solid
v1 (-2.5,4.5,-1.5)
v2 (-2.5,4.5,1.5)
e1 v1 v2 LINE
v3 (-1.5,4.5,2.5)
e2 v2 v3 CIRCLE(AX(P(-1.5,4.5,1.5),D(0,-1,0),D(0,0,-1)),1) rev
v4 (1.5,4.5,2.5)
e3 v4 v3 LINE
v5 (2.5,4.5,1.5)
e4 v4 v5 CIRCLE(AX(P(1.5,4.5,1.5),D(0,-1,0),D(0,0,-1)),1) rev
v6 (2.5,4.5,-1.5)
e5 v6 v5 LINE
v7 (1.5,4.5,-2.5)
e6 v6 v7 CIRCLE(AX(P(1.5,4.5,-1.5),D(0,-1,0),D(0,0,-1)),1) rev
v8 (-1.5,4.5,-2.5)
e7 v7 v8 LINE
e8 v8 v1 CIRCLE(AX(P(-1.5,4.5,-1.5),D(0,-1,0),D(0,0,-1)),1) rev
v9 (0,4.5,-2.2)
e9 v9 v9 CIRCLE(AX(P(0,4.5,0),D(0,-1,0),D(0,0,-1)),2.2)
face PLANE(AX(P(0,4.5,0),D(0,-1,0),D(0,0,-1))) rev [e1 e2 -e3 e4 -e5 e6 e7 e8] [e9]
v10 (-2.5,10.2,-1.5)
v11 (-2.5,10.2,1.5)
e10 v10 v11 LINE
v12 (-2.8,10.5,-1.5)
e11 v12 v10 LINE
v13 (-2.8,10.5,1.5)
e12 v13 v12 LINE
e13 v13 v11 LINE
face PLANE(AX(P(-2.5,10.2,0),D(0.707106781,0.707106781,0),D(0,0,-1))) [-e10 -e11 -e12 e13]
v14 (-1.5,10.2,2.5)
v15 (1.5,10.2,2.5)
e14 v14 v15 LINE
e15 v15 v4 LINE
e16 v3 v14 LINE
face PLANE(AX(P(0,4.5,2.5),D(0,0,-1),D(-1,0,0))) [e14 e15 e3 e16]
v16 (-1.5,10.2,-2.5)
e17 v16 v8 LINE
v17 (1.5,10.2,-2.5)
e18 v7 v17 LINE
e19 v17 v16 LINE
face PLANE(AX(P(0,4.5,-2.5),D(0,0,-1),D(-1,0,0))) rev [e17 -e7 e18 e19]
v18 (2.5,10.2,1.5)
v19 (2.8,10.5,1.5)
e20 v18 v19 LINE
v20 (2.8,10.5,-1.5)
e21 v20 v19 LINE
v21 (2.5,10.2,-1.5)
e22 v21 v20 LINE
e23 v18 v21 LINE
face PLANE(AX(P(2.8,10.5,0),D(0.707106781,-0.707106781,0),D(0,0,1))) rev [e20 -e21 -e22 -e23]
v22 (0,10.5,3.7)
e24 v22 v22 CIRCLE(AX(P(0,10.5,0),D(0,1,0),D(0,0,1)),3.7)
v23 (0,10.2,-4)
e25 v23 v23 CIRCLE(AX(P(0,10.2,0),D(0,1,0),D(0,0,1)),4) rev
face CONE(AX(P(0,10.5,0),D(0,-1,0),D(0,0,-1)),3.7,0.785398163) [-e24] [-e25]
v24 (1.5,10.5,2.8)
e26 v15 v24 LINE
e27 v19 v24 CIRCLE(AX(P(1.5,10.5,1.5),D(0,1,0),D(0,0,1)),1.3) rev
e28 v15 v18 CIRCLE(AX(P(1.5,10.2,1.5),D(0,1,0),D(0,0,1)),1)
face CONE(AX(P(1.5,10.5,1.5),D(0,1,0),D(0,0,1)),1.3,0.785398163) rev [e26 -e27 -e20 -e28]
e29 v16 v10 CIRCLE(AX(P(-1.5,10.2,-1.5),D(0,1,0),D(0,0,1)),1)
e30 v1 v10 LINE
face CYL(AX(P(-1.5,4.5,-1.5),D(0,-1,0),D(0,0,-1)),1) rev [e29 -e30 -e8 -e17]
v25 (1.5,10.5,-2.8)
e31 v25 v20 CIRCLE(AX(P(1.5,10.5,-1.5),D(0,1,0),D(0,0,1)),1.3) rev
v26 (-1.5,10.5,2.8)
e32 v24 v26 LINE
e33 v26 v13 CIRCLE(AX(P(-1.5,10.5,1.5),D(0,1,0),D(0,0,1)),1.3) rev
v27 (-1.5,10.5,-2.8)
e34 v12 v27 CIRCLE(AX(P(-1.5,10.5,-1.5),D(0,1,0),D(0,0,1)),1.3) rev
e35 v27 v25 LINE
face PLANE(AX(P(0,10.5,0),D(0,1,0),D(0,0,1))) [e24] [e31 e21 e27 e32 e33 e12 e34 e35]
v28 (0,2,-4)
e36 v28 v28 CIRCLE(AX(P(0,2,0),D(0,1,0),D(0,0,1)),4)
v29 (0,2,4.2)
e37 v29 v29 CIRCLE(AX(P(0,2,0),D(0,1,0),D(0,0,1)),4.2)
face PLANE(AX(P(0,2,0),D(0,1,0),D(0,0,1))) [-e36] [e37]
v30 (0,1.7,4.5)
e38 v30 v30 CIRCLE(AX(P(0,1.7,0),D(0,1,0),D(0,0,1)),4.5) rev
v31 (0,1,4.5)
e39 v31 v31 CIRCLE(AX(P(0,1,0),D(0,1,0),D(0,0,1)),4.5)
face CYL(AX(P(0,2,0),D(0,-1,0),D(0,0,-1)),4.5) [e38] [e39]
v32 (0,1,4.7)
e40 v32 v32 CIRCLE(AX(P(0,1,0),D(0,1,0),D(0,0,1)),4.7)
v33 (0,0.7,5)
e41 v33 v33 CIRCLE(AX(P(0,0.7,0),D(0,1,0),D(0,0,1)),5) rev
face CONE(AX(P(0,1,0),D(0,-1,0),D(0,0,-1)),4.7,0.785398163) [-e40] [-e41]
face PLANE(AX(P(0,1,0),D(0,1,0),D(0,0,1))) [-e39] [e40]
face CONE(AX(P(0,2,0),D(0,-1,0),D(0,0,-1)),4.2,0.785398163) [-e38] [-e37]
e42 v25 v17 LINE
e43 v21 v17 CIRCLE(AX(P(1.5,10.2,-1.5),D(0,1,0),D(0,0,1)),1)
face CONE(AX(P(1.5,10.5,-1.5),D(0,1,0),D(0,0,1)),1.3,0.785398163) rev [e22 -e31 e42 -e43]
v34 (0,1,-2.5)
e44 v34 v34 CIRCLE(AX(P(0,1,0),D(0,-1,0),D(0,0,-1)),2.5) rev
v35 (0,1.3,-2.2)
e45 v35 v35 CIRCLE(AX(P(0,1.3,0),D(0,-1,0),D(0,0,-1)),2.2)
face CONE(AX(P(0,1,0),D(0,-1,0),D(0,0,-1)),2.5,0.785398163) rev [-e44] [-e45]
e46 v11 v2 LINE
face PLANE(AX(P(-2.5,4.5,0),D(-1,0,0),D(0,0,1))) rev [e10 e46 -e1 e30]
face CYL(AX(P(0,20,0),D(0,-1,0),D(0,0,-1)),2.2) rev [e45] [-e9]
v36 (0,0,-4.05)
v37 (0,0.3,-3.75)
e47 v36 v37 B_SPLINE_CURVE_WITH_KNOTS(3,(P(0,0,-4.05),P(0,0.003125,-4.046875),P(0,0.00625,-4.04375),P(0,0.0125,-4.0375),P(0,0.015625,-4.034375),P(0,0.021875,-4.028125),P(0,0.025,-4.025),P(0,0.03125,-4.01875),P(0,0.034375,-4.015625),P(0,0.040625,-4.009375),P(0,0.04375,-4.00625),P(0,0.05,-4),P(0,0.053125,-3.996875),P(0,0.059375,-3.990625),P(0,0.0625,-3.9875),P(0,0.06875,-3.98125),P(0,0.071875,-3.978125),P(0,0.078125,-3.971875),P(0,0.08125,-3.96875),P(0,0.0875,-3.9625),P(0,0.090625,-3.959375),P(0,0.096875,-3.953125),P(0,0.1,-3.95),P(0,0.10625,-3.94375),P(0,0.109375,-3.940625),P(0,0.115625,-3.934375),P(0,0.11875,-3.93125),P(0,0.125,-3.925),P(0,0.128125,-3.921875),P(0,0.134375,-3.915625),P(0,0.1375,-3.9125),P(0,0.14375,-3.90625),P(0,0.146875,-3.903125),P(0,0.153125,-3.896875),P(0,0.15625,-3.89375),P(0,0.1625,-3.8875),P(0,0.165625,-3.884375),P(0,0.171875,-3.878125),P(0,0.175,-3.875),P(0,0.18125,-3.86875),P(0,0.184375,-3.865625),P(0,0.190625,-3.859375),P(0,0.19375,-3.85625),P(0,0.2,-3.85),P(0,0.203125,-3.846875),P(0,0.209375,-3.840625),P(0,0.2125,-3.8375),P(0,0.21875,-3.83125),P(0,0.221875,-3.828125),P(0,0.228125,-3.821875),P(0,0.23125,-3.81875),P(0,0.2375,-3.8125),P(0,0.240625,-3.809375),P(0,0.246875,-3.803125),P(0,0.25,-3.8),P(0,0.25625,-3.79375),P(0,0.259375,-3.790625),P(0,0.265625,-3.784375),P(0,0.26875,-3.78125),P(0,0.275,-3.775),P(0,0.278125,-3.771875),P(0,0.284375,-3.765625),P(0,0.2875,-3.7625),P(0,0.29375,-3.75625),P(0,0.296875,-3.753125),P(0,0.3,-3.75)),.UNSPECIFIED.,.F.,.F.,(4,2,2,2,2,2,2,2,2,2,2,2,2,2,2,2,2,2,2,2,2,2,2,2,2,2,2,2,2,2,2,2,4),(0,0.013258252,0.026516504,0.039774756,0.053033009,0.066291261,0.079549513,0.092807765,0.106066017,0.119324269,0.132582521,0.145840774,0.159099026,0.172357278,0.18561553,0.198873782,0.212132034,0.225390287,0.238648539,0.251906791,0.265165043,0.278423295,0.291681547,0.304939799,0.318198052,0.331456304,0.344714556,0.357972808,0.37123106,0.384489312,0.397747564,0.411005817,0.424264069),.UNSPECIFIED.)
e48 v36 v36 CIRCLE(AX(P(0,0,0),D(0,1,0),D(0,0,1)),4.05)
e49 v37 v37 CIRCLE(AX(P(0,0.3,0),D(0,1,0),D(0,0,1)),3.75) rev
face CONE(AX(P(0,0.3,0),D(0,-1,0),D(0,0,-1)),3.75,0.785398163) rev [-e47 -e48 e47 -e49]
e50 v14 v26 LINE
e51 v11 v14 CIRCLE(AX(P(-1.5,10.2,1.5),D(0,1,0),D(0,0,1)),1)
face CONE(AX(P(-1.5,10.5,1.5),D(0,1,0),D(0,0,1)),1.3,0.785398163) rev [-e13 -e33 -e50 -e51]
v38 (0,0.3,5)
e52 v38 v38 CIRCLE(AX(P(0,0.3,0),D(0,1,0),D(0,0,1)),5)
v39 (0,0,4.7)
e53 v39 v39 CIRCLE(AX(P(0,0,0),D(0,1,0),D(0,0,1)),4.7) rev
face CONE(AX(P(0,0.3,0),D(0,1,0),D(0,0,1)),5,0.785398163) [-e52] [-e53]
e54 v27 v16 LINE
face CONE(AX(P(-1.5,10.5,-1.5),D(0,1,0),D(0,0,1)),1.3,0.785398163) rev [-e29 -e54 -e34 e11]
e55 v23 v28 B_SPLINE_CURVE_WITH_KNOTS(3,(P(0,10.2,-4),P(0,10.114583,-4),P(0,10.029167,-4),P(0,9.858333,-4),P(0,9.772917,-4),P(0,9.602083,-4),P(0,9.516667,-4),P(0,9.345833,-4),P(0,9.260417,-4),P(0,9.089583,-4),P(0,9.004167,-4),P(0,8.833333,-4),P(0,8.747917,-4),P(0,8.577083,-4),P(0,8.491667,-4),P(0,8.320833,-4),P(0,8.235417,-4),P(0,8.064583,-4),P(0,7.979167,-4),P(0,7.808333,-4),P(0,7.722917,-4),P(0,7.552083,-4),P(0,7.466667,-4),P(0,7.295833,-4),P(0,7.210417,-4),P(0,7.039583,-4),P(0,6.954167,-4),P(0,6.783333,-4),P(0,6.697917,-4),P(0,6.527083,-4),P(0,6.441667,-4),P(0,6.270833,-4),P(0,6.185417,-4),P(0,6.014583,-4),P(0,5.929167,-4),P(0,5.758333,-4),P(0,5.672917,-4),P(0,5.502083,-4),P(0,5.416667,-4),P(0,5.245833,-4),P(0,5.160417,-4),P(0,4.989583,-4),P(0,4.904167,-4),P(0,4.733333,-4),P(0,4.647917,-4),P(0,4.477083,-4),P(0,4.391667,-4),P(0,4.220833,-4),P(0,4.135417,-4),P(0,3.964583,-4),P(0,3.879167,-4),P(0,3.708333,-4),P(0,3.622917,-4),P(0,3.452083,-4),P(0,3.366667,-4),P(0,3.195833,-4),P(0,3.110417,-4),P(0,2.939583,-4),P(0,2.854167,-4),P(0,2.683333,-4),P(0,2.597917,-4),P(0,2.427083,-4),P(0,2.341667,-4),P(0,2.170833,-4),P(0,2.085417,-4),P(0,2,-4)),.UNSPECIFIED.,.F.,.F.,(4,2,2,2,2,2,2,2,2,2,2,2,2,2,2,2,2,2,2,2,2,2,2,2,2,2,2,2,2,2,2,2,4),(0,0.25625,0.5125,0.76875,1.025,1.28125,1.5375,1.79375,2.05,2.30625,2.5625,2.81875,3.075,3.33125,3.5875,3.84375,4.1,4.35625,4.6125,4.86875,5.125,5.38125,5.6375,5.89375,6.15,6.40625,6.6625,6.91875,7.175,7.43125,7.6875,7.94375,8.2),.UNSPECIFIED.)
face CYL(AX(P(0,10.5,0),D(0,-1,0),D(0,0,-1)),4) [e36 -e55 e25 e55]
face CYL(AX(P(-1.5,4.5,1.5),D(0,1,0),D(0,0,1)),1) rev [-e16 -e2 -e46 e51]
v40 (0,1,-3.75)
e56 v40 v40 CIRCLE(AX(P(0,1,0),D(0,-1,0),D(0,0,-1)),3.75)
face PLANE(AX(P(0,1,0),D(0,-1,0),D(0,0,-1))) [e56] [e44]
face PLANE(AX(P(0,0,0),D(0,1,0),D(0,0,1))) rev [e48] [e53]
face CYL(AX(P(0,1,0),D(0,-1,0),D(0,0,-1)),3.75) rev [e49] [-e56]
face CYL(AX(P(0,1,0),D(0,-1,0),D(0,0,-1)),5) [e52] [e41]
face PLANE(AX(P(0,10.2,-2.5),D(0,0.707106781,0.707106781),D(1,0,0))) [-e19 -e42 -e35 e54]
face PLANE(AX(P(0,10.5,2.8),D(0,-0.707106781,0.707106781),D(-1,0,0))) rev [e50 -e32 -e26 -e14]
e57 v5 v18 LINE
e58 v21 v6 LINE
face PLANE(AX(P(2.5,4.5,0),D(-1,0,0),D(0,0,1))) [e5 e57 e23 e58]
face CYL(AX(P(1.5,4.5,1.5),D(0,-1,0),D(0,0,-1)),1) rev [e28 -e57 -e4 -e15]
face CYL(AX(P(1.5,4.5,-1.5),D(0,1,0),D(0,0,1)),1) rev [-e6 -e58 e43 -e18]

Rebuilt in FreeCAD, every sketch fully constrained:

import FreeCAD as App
import Part
import Sketcher
from FreeCAD import Vector
Q = App.Units.Quantity


def edges_at(feature, points):
    """Names of the edges that pass closest to the given points."""
    edges = feature.Shape.Edges
    near = lambda p: min(range(len(edges)), key=lambda i: edges[i].distToShape(Part.Vertex(*p))[0])
    return sorted({f"Edge{near(p) + 1}" for p in points})


def add_polygon(sketch, points):
    """Adds a closed chain of lines whose ends are joined by coincident constraints."""
    first, n = sketch.GeometryCount, len(points)
    for a, b in zip(points, points[1:] + points[:1]):
        sketch.addGeometry(Part.LineSegment(App.Vector(*a, 0), App.Vector(*b, 0)), False)
    for i in range(n):
        sketch.addConstraint(Sketcher.Constraint("Coincident", first + i, 2, first + (i + 1) % n, 1))

doc = App.newDocument("Part")
params = doc.addObject("Spreadsheet::Sheet", "Params")
for row, (alias, value) in enumerate([
    ("sketch1_diameter", "10 mm"),
    ("sketch1_diameter2", "9 mm"),
    ("pad1_length", "1 mm"),
    ("sketch2_diameter", "9 mm"),
    ("sketch2_diameter2", "8 mm"),
    ("pad2_length", "2 mm"),
    ("sketch3_diameter", "8 mm"),
    ("pad3_length", "10.5 mm"),
    ("sketch4_width", "5 mm"),
    ("pocket1_length", "6 mm"),
    ("sketch5_diameter", "4.4 mm"),
    ("pocket2_length", "20 mm"),
    ("sketch6_diameter", "7.5 mm"),
    ("pocket3_length", "1 mm"),
    ("fillet_radius", "1 mm"),
    ("chamfer_size", "0.3 mm"),
], start=1):
    params.set(f"A{row}", alias)
    params.set(f"B{row}", "=" + value)
    params.setAlias(f"B{row}", alias)

body = doc.addObject("PartDesign::Body", "Body")

sketch1 = doc.addObject("Sketcher::SketchObject", "Sketch")
body.addObject(sketch1)
sketch1.AttachmentSupport = (doc.XZ_Plane, [""])
sketch1.MapMode = "FlatFace"
sketch1.addGeometry([
    Part.Circle(Vector(0, 0, 0), Vector(0, 0, 1), 5),
    Part.Circle(Vector(0, 0, 0), Vector(0, 0, 1), 4.5),
], False)
sketch1.addConstraint([
    Sketcher.Constraint("Coincident", 0, 3, -1, 1),
    Sketcher.Constraint("Coincident", 1, 3, -1, 1),
    Sketcher.Constraint("Diameter", 0, Q("10 mm")),
    Sketcher.Constraint("Diameter", 1, Q("9 mm")),
])
sketch1.setExpression("Constraints[2]", "Params.sketch1_diameter")
sketch1.setExpression("Constraints[3]", "Params.sketch1_diameter2")
pad1 = doc.addObject("PartDesign::Pad", "Pad")
body.addObject(pad1)
pad1.Profile = sketch1
pad1.setExpression("Length", "Params.pad1_length")
pad1.Reversed = True

sketch2 = doc.addObject("Sketcher::SketchObject", "Sketch001")
body.addObject(sketch2)
sketch2.AttachmentSupport = (doc.XZ_Plane, [""])
sketch2.MapMode = "FlatFace"
sketch2.addGeometry([
    Part.Circle(Vector(0, 0, 0), Vector(0, 0, 1), 4.5),
    Part.Circle(Vector(0, 0, 0), Vector(0, 0, 1), 4),
], False)
sketch2.addConstraint([
    Sketcher.Constraint("Coincident", 0, 3, -1, 1),
    Sketcher.Constraint("Coincident", 1, 3, -1, 1),
    Sketcher.Constraint("Diameter", 0, Q("9 mm")),
    Sketcher.Constraint("Diameter", 1, Q("8 mm")),
])
sketch2.setExpression("Constraints[2]", "Params.sketch2_diameter")
sketch2.setExpression("Constraints[3]", "Params.sketch2_diameter2")
pad2 = doc.addObject("PartDesign::Pad", "Pad001")
body.addObject(pad2)
pad2.Profile = sketch2
pad2.setExpression("Length", "Params.pad2_length")
pad2.Reversed = True

sketch3 = doc.addObject("Sketcher::SketchObject", "Sketch002")
body.addObject(sketch3)
sketch3.AttachmentSupport = (doc.XZ_Plane, [""])
sketch3.MapMode = "FlatFace"
sketch3.addGeometry(Part.Circle(Vector(0, 0, 0), Vector(0, 0, 1), 4), False)
sketch3.addConstraint([
    Sketcher.Constraint("Coincident", 0, 3, -1, 1),
    Sketcher.Constraint("Diameter", 0, Q("8 mm")),
])
sketch3.setExpression("Constraints[1]", "Params.sketch3_diameter")
pad3 = doc.addObject("PartDesign::Pad", "Pad002")
body.addObject(pad3)
pad3.Profile = sketch3
pad3.setExpression("Length", "Params.pad3_length")
pad3.Reversed = True

sketch4 = doc.addObject("Sketcher::SketchObject", "Sketch003")
body.addObject(sketch4)
sketch4.AttachmentSupport = (doc.XZ_Plane, [""])
sketch4.MapMode = "FlatFace"
sketch4.AttachmentOffset = App.Placement(Vector(0, 0, -10.5), App.Rotation())
add_polygon(sketch4, [(-2, -2), (-2, 2), (2, 2), (2, -2)])
sketch4.addConstraint([
    Sketcher.Constraint("Vertical", 0),
    Sketcher.Constraint("Horizontal", 1),
    Sketcher.Constraint("Vertical", 2),
    Sketcher.Constraint("Horizontal", 3),
    Sketcher.Constraint("Symmetric", 0, 2, 2, 2, -1, 1),
    Sketcher.Constraint("Equal", 3, 0),
    Sketcher.Constraint("DistanceX", 1, 1, 1, 2, Q("5 mm")),
])
sketch4.setExpression("Constraints[10]", "Params.sketch4_width")
pocket1 = doc.addObject("PartDesign::Pocket", "Pocket")
body.addObject(pocket1)
pocket1.Profile = sketch4
pocket1.setExpression("Length", "Params.pocket1_length")
pocket1.Reversed = True

sketch5 = doc.addObject("Sketcher::SketchObject", "Sketch004")
body.addObject(sketch5)
sketch5.AttachmentSupport = (doc.XZ_Plane, [""])
sketch5.MapMode = "FlatFace"
sketch5.addGeometry(Part.Circle(Vector(0, 0, 0), Vector(0, 0, 1), 2.2), False)
sketch5.addConstraint([
    Sketcher.Constraint("Coincident", 0, 3, -1, 1),
    Sketcher.Constraint("Diameter", 0, Q("4.4 mm")),
])
sketch5.setExpression("Constraints[1]", "Params.sketch5_diameter")
pocket2 = doc.addObject("PartDesign::Pocket", "Pocket001")
body.addObject(pocket2)
pocket2.Profile = sketch5
pocket2.setExpression("Length", "Params.pocket2_length")

sketch6 = doc.addObject("Sketcher::SketchObject", "Sketch005")
body.addObject(sketch6)
sketch6.AttachmentSupport = (doc.XZ_Plane, [""])
sketch6.MapMode = "FlatFace"
sketch6.addGeometry(Part.Circle(Vector(0, 0, 0), Vector(0, 0, 1), 3.8), False)
sketch6.addConstraint([
    Sketcher.Constraint("Coincident", 0, 3, -1, 1),
    Sketcher.Constraint("Diameter", 0, Q("7.5 mm")),
])
sketch6.setExpression("Constraints[1]", "Params.sketch6_diameter")
pocket3 = doc.addObject("PartDesign::Pocket", "Pocket002")
body.addObject(pocket3)
pocket3.Profile = sketch6
pocket3.setExpression("Length", "Params.pocket3_length")
doc.recompute()

fillet = doc.addObject("PartDesign::Fillet", "Fillet")
body.addObject(fillet)
fillet.Base = (pocket3, edges_at(pocket3, [
    (-2.5, 7.5, 2.5),
    (-2.5, 7.5, -2.5),
    (2.5, 7.5, -2.5),
    (2.5, 7.5, 2.5),
]))
fillet.setExpression("Radius", "Params.fillet_radius")
doc.recompute()

chamfer = doc.addObject("PartDesign::Chamfer", "Chamfer")
body.addObject(chamfer)
chamfer.Base = (fillet, edges_at(fillet, [
    (0, 2, -4.5),
    (0, 1, -5),
    (0, 10.5, 4),
    (0, 0, -5),
    (0, 0, 3.75),
    (0, 1, 2.2),
    (2.5, 10.5, 0),
    (0, 10.5, 2.5),
    (-2.5, 10.5, 0),
    (0, 10.5, -2.5),
    (2.207, 10.5, 2.207),
    (-2.207, 10.5, 2.207),
    (2.207, 10.5, -2.207),
    (-2.207, 10.5, -2.207),
]))
chamfer.setExpression("Size", "Params.chamfer_size")

doc.recompute()
